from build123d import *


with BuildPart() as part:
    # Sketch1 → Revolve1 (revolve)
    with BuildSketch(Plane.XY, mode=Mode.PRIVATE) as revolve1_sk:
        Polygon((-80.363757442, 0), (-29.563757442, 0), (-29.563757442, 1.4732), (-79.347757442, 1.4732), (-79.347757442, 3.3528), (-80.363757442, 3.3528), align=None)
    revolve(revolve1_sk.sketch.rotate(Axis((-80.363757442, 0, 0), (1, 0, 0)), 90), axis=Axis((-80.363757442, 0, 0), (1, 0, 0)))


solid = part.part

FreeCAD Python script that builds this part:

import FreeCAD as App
import Part
import Sketcher

V = App.Vector
Q = App.Units.Quantity


def add_polygon(sketch, points):
    """Adds a closed chain of lines whose ends are joined by coincident constraints."""
    first, n = sketch.GeometryCount, len(points)
    for a, b in zip(points, points[1:] + points[:1]):
        sketch.addGeometry(Part.LineSegment(App.Vector(*a, 0), App.Vector(*b, 0)), False)
    for i in range(n):
        sketch.addConstraint(Sketcher.Constraint("Coincident", first + i, 2, first + (i + 1) % n, 1))

doc = App.newDocument("Part")
params = doc.addObject("Spreadsheet::Sheet", "Params")
for row, (alias, value) in enumerate([
    ("sketch1_width", "2 in"),
    ("sketch1_width2", "1.96 in"),
    ("sketch1_height", "0.058 in"),
    ("sketch1_height2", "0.074 in"),
    ("revolution_angle", "360 deg"),
], start=1):
    params.set(f"A{row}", alias)
    params.set(f"B{row}", "=" + value)
    params.setAlias(f"B{row}", alias)

body = doc.addObject("PartDesign::Body", "Body")

# Sketch on XY plane
sketch1 = doc.addObject("Sketcher::SketchObject", "Sketch")
body.addObject(sketch1)
sketch1.AttachmentSupport = (doc.XY_Plane, [""])
sketch1.MapMode = "FlatFace"
add_polygon(sketch1, [(-80.4, 0), (-29.6, 0), (-29.6, 1.5), (-79.3, 1.5), (-79.3, 3.4), (-80.4, 3.4)])  # lines 0-5
sketch1.addConstraint(Sketcher.Constraint("Horizontal", 0))
sketch1.addConstraint(Sketcher.Constraint("Vertical", 1))
sketch1.addConstraint(Sketcher.Constraint("Horizontal", 2))
sketch1.addConstraint(Sketcher.Constraint("Vertical", 3))
sketch1.addConstraint(Sketcher.Constraint("Horizontal", 4))
sketch1.addConstraint(Sketcher.Constraint("Vertical", 5))
sketch1.addConstraint(Sketcher.Constraint("PointOnObject", 0, 2, -1))
sketch1.addConstraint(Sketcher.Constraint("DistanceX", 0, 1, 0, 2, Q("2 in")))
sketch1.addConstraint(Sketcher.Constraint("DistanceX", 2, 2, 2, 1, Q("1.96 in")))
sketch1.addConstraint(Sketcher.Constraint("DistanceY", 1, 1, 1, 2, Q("0.058 in")))
sketch1.addConstraint(Sketcher.Constraint("DistanceY", 3, 1, 3, 2, Q("0.074 in")))
sketch1.addConstraint(Sketcher.Constraint("DistanceX", 0, 2, -1, 1, Q("29.563757 mm")))
sketch1.setExpression("Constraints[13]", "Params.sketch1_width")
sketch1.setExpression("Constraints[14]", "Params.sketch1_width2")
sketch1.setExpression("Constraints[15]", "Params.sketch1_height")
sketch1.setExpression("Constraints[16]", "Params.sketch1_height2")
revolution = doc.addObject("PartDesign::Revolution", "Revolution")
body.addObject(revolution)
revolution.Profile = sketch1
revolution.ReferenceAxis = (sketch1, ["H_Axis"])
revolution.setExpression("Angle", "Params.revolution_angle")

doc.recompute()
